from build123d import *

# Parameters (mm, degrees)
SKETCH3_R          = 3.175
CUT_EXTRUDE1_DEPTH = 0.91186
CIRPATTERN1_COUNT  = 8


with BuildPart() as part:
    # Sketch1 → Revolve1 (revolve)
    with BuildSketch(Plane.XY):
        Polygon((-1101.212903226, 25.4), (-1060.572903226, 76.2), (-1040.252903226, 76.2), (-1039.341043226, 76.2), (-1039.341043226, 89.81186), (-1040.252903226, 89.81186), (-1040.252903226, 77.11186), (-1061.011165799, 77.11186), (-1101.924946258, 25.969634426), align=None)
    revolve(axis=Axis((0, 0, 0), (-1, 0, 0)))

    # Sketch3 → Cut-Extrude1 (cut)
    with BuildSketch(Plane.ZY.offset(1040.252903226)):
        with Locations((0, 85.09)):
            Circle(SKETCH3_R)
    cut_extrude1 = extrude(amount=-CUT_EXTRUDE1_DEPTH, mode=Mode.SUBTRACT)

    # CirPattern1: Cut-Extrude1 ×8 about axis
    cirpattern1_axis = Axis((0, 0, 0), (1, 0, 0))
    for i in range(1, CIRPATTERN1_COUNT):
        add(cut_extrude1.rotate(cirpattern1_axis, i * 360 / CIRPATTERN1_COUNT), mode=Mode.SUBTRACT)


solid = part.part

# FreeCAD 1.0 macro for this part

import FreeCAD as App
import Part
import Sketcher

V = App.Vector
Q = App.Units.Quantity

doc = App.newDocument("Part")
body = doc.addObject("PartDesign::Body", "Body")

sketch1 = body.newObject("Sketcher::SketchObject", "Sketch")
sketch1.AttachmentSupport = (doc.getObject("XY_Plane"), [""])
sketch1.MapMode = "FlatFace"
sketch1.addGeometry([
    Part.LineSegment(V(-1101.212903, 25.4, 0), V(-1060.572903, 76.2, 0)),
    Part.LineSegment(V(-1060.572903, 76.2, 0), V(-1039.341043, 76.2, 0)),
    Part.LineSegment(V(-1039.341043, 76.2, 0), V(-1039.341043, 89.81186, 0)),
    Part.LineSegment(V(-1039.341043, 89.81186, 0), V(-1040.252903, 89.81186, 0)),
    Part.LineSegment(V(-1040.252903, 89.81186, 0), V(-1040.252903, 77.11186, 0)),
    Part.LineSegment(V(-1040.252903, 77.11186, 0), V(-1061.011166, 77.11186, 0)),
    Part.LineSegment(V(-1061.011166, 77.11186, 0), V(-1101.924946, 25.969634, 0)),
    Part.LineSegment(V(-1101.924946, 25.969634, 0), V(-1101.212903, 25.4, 0)),
], False)
sketch1.addConstraint([
    Sketcher.Constraint("Coincident", 0, 2, 1, 1),
    Sketcher.Constraint("Coincident", 1, 2, 2, 1),
    Sketcher.Constraint("Coincident", 2, 2, 3, 1),
    Sketcher.Constraint("Coincident", 3, 2, 4, 1),
    Sketcher.Constraint("Coincident", 4, 2, 5, 1),
    Sketcher.Constraint("Coincident", 5, 2, 6, 1),
    Sketcher.Constraint("Coincident", 6, 2, 7, 1),
    Sketcher.Constraint("Coincident", 7, 2, 0, 1),
    Sketcher.Constraint("Horizontal", 1),
    Sketcher.Constraint("Vertical", 2),
    Sketcher.Constraint("Horizontal", 3),
    Sketcher.Constraint("Vertical", 4),
    Sketcher.Constraint("Horizontal", 5),
    Sketcher.Constraint("Parallel", 0, 6),
    Sketcher.Constraint("Perpendicular", 6, 7),
    Sketcher.Constraint("DistanceY", 4, 2, 4, 1, Q("0.5 in")),
    Sketcher.Constraint("DistanceY", -1, 1, 0, 2, Q("3 in")),
    Sketcher.Constraint("DistanceY", -1, 1, 7, 2, Q("1 in")),
    Sketcher.Constraint("DistanceX", 0, 2, 3, 2, Q("0.8 in")),
    Sketcher.Constraint("DistanceX", 7, 2, 0, 2, Q("1.6 in")),
    Sketcher.Constraint("DistanceX", 1, 1, 1, 2, Q("0.8359 in")),
    Sketcher.Constraint("DistanceY", 2, 1, 2, 2, Q("0.5359 in")),
    Sketcher.Constraint("Distance", 7, Q("0.0359 in")),
    Sketcher.Constraint("DistanceX", 0, 2, -1, 1, Q("1060.572903 mm")),
])
revolution = body.newObject("PartDesign::Revolution", "Revolution")
revolution.Profile = sketch1
revolution.ReferenceAxis = (sketch1, ["H_Axis"])
revolution.Angle = 360

sketch2 = body.newObject("Sketcher::SketchObject", "Sketch001")
sketch2.AttachmentSupport = (doc.getObject("YZ_Plane"), [""])
sketch2.MapMode = "FlatFace"
sketch2.AttachmentOffset = App.Placement(V(0, 0, -1040.252903), App.Rotation())
sketch2.addGeometry(Part.Circle(V(85.09, 0, 0), V(0, 0, 1), 3.175), False)
sketch2.addConstraint([
    Sketcher.Constraint("PointOnObject", 0, 3, -1),
    Sketcher.Constraint("Diameter", 0, Q("0.25 in")),
    Sketcher.Constraint("DistanceX", -1, 1, 0, 3, Q("3.35 in")),
])
pocket1 = body.newObject("PartDesign::Pocket", "Pocket")
pocket1.Profile = sketch2
pocket1.Length = Q("0.0359 in")
pocket1.Reversed = True
doc.recompute()

polarpattern = body.newObject("PartDesign::PolarPattern", "PolarPattern")
polarpattern.Originals = [pocket1]
polarpattern.Axis = (doc.getObject("X_Axis"), [""])
polarpattern.Angle = 360
polarpattern.Occurrences = 8
body.Tip = polarpattern

doc.recompute()
